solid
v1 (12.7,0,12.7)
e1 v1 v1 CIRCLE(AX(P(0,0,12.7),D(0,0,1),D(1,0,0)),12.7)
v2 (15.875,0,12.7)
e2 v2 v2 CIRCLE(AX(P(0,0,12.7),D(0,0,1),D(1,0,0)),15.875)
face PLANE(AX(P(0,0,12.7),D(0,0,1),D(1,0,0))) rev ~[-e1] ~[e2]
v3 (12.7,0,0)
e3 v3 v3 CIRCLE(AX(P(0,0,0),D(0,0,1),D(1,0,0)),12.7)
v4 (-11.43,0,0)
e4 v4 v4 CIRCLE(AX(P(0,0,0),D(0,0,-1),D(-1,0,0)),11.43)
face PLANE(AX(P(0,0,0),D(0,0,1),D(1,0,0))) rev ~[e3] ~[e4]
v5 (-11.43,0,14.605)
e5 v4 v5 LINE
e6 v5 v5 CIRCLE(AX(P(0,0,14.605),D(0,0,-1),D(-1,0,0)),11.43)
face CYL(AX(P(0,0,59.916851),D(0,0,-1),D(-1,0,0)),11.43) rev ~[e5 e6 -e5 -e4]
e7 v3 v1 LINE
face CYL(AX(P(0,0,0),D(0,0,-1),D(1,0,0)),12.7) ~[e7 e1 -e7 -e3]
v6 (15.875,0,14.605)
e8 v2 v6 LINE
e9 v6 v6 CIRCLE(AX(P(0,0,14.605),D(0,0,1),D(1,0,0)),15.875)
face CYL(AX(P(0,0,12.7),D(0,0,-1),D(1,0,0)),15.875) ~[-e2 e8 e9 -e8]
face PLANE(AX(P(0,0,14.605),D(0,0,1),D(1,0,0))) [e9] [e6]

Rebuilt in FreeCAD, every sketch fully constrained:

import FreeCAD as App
import Part
import Sketcher

V = App.Vector
Q = App.Units.Quantity

doc = App.newDocument("Part")
body = doc.addObject("PartDesign::Body", "Body")

# Sketch on XY plane
sketch1 = body.newObject("Sketcher::SketchObject", "Sketch")
sketch1.AttachmentSupport = (doc.getObject("XY_Plane"), [""])
sketch1.MapMode = "FlatFace"
sketch1.addGeometry(Part.Circle(V(0, 0, 0), V(0, 0, 1), 12.7), False)
sketch1.addConstraint(Sketcher.Constraint("Coincident", 0, 3, -1, 1))
sketch1.addConstraint(Sketcher.Constraint("Diameter", 0, Q("1 in")))
pad1 = body.newObject("PartDesign::Pad", "Pad")
pad1.Profile = sketch1
pad1.Length = Q("0.5 in")

# Sketch on XY plane
sketch2 = body.newObject("Sketcher::SketchObject", "Sketch001")
sketch2.AttachmentSupport = (doc.getObject("XY_Plane"), [""])
sketch2.MapMode = "FlatFace"
sketch2.AttachmentOffset = App.Placement(V(0, 0, 0.575 * 25.4), App.Rotation())
sketch2.addGeometry(Part.Circle(V(0, 0, 0), V(0, 0, 1), 11.43), False)
sketch2.addConstraint(Sketcher.Constraint("Coincident", 0, 3, -1, 1))
sketch2.addConstraint(Sketcher.Constraint("Diameter", 0, Q("0.9 in")))
doc.recompute()
hole = body.newObject("PartDesign::Hole", "Hole")
hole.Profile = sketch2
hole.ThreadType = "None"
hole.Diameter = Q("0.9 in")
hole.DepthType = "ThroughAll"

# Sketch on XY plane
sketch3 = body.newObject("Sketcher::SketchObject", "Sketch002")
sketch3.AttachmentSupport = (doc.getObject("XY_Plane"), [""])
sketch3.MapMode = "FlatFace"
sketch3.AttachmentOffset = App.Placement(V(0, 0, 0.5 * 25.4), App.Rotation())
sketch3.addGeometry(Part.Circle(V(0, 0, 0), V(0, 0, 1), 15.875), False)
sketch3.addConstraint(Sketcher.Constraint("Coincident", 0, 3, -1, 1))
sketch3.addConstraint(Sketcher.Constraint("Diameter", 0, Q("1.25 in")))
pad2 = body.newObject("PartDesign::Pad", "Pad001")
pad2.Profile = sketch3
pad2.Length = Q("0.075 in")

# Sketch on XY plane
sketch4 = body.newObject("Sketcher::SketchObject", "Sketch003")
sketch4.AttachmentSupport = (doc.getObject("XY_Plane"), [""])
sketch4.MapMode = "FlatFace"
sketch4.AttachmentOffset = App.Placement(V(0, 0, 0.5 * 25.4), App.Rotation())
sketch4.addGeometry(Part.Circle(V(0, 0, 0), V(0, 0, 1), 11.43), False)
sketch4.addConstraint(Sketcher.Constraint("Coincident", 0, 3, -1, 1))
sketch4.addConstraint(Sketcher.Constraint("Diameter", 0, Q("0.9 in")))
doc.recompute()
hole2 = body.newObject("PartDesign::Hole", "Hole001")
hole2.Profile = sketch4
hole2.ThreadType = "None"
hole2.Diameter = Q("0.9 in")
hole2.DepthType = "ThroughAll"
hole2.Reversed = True

doc.recompute()
